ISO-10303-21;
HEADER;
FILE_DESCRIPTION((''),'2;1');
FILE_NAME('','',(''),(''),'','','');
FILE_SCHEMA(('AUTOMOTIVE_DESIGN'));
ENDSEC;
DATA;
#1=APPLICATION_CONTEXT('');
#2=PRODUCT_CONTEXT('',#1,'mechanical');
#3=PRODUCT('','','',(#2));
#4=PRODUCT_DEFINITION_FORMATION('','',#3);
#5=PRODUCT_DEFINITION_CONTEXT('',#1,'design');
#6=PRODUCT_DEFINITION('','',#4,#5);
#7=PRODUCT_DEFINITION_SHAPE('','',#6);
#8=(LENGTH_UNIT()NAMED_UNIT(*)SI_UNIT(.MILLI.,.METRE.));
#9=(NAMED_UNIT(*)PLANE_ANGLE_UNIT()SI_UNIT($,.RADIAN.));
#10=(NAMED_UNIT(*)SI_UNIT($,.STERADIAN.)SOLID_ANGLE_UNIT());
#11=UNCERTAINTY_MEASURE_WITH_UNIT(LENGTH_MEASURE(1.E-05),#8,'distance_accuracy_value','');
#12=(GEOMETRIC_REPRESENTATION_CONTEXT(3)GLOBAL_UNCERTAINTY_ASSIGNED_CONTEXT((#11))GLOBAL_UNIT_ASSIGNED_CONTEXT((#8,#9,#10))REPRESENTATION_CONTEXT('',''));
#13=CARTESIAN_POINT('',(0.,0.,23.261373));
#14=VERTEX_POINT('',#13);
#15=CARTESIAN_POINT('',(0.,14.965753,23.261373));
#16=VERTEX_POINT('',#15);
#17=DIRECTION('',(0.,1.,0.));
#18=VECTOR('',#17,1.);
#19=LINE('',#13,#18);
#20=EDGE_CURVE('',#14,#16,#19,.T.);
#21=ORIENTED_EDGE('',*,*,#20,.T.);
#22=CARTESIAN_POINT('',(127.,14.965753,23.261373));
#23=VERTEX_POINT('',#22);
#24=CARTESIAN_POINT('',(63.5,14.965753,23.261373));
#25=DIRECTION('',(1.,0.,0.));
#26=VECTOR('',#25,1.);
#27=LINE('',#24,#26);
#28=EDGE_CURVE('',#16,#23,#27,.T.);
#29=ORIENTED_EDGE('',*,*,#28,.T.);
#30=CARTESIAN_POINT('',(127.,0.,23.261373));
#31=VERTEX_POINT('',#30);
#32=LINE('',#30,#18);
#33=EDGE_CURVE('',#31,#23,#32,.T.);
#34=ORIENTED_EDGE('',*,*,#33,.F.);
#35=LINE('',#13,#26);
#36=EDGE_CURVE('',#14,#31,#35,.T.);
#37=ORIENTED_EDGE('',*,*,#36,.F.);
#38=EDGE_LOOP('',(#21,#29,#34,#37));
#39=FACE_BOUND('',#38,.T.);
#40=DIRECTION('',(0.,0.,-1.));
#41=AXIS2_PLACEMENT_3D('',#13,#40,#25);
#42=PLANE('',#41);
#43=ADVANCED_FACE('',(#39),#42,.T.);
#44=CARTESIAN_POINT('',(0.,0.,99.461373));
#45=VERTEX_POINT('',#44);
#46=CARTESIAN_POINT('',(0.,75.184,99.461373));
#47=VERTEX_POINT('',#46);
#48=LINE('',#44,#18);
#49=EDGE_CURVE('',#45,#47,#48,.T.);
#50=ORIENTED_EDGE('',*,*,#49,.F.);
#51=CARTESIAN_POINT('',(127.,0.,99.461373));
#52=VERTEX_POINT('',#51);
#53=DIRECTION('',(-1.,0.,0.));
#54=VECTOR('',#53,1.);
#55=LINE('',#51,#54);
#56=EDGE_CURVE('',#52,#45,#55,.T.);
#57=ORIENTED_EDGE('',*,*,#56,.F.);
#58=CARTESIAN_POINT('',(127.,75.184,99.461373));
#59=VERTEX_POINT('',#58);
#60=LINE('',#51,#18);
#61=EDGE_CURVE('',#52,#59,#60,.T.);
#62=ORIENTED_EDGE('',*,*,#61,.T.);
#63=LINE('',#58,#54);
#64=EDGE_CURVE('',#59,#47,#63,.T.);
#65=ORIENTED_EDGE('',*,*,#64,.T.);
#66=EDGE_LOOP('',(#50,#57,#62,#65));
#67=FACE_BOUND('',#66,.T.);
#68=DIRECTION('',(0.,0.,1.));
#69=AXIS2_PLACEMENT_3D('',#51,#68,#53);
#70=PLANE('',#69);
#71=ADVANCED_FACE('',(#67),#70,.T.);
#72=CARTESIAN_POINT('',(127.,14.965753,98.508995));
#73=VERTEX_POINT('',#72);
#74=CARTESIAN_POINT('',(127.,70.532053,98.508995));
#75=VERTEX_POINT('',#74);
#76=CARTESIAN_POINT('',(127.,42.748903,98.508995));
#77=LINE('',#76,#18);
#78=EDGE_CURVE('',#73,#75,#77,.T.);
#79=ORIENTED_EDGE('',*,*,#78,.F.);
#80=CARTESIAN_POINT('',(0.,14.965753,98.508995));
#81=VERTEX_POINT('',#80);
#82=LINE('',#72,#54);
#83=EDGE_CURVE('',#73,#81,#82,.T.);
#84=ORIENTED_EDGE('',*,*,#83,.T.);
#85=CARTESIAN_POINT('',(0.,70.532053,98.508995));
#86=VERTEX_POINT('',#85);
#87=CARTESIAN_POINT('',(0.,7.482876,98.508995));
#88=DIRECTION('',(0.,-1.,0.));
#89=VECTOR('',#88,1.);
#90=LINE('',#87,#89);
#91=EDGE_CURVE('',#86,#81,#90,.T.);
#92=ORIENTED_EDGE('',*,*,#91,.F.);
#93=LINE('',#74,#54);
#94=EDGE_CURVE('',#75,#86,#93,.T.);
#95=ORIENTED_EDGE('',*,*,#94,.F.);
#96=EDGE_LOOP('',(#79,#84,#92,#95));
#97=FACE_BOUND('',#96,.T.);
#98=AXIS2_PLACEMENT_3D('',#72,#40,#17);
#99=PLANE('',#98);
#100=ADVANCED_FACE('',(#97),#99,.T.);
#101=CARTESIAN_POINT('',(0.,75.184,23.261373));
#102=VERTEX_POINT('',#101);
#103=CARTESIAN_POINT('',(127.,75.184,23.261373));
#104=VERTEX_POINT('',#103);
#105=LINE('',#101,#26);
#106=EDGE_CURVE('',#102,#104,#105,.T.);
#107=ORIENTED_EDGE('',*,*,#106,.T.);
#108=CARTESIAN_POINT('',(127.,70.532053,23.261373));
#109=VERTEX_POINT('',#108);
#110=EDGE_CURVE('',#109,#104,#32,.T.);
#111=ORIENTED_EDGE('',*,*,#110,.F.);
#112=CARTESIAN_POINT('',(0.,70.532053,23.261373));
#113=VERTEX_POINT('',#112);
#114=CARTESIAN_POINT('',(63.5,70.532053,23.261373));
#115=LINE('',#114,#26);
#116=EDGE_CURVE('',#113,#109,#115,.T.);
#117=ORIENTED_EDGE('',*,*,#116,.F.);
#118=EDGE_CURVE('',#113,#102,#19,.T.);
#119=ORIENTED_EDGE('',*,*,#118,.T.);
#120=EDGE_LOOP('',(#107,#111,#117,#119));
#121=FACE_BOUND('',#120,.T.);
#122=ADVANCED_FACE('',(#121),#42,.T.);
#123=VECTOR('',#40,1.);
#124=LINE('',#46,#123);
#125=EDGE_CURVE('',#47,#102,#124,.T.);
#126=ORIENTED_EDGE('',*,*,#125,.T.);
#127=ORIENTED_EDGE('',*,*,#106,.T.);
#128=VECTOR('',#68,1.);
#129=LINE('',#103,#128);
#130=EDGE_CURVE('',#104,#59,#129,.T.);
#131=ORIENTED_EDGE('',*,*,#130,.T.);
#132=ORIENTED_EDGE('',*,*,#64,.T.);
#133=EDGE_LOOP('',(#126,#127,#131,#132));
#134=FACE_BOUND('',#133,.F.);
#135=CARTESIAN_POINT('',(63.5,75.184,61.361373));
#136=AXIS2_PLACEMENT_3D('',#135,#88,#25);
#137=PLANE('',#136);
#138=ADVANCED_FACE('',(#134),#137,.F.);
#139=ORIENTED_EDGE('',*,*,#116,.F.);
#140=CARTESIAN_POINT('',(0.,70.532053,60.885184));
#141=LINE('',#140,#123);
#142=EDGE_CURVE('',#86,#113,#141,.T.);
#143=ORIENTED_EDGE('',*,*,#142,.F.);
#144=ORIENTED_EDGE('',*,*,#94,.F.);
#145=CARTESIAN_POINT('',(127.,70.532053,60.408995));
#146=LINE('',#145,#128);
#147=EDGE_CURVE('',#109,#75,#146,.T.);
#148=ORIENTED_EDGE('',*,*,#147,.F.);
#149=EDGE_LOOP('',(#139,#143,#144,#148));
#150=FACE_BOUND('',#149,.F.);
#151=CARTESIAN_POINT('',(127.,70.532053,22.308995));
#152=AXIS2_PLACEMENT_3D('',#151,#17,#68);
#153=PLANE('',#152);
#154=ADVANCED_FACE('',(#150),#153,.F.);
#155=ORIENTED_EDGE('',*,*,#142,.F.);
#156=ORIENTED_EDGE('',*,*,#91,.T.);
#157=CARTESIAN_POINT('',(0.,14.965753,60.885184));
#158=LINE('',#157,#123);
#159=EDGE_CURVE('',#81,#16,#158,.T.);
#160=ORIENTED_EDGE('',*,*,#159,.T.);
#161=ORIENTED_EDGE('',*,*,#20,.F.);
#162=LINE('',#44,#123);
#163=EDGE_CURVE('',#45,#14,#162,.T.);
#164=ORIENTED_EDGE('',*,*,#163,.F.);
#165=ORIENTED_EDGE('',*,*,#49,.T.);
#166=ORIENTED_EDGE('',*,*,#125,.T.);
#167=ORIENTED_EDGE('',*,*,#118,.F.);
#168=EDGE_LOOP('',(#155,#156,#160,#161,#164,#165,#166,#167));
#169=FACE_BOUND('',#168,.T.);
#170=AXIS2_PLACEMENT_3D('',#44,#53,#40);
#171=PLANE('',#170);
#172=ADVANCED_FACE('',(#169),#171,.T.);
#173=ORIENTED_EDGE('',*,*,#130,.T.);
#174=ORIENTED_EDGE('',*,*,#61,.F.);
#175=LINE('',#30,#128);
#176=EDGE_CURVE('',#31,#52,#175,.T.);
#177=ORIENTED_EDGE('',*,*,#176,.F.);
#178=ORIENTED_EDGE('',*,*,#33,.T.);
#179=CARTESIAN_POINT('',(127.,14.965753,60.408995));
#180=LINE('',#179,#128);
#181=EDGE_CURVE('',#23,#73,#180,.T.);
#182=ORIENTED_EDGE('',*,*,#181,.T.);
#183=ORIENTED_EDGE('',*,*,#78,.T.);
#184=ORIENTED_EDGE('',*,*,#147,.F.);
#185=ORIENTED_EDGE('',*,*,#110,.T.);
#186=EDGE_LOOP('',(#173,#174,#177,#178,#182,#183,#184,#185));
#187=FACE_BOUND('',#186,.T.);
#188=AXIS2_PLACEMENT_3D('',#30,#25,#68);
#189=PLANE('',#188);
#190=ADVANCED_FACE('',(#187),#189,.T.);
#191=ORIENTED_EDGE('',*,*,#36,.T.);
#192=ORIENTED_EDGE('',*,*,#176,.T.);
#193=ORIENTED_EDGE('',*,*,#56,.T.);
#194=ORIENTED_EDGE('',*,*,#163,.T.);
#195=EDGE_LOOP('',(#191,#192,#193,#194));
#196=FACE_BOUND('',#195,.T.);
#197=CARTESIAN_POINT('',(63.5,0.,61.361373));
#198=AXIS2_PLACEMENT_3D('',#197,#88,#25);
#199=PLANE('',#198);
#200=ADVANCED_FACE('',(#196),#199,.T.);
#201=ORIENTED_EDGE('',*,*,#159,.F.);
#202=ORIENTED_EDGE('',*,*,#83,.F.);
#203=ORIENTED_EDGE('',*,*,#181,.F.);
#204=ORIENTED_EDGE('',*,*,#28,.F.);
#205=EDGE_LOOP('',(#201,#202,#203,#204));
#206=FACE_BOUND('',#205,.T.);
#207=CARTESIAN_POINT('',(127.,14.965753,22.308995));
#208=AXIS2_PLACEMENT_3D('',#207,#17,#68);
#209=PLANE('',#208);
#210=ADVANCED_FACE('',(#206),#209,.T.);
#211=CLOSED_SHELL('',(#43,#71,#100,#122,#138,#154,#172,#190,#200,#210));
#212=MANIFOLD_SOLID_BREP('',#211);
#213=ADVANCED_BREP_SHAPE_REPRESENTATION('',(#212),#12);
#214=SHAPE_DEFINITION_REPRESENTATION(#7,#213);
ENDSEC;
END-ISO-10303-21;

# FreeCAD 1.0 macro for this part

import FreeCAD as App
import Part
import Sketcher
Q = App.Units.Quantity


def add_polygon(sketch, points):
    """Adds a closed chain of lines whose ends are joined by coincident constraints."""
    first, n = sketch.GeometryCount, len(points)
    for a, b in zip(points, points[1:] + points[:1]):
        sketch.addGeometry(Part.LineSegment(App.Vector(*a, 0), App.Vector(*b, 0)), False)
    for i in range(n):
        sketch.addConstraint(Sketcher.Constraint("Coincident", first + i, 2, first + (i + 1) % n, 1))

doc = App.newDocument("Part")
params = doc.addObject("Spreadsheet::Sheet", "Params")
for row, (alias, value) in enumerate([
    ("sketch1_width", "5 in"),
    ("sketch1_height", "3 in"),
    ("pad1_length", "2.96 in"),
    ("sketch2_height", "3 in"),
    ("pocket1_length", "6.57 in"),
], start=1):
    params.set(f"A{row}", alias)
    params.set(f"B{row}", "=" + value)
    params.setAlias(f"B{row}", alias)

body = doc.addObject("PartDesign::Body", "Body")

# Sketch on XZ plane
sketch1 = body.newObject("Sketcher::SketchObject", "Sketch")
sketch1.AttachmentSupport = (doc.getObject("XZ_Plane"), [""])
sketch1.MapMode = "FlatFace"
add_polygon(sketch1, [(0, 99), (0, 23), (127, 23), (127, 99)])  # lines 0-3
sketch1.addConstraint([
    Sketcher.Constraint("Vertical", 0),
    Sketcher.Constraint("Horizontal", 1),
    Sketcher.Constraint("Vertical", 2),
    Sketcher.Constraint("Horizontal", 3),
    Sketcher.Constraint("PointOnObject", 0, 2, -2),
    Sketcher.Constraint("DistanceX", 1, 1, 1, 2, Q("5 in")),
    Sketcher.Constraint("DistanceY", 0, 2, 0, 1, Q("3 in")),
    Sketcher.Constraint("DistanceY", -1, 1, 0, 2, 23.261373),
])
sketch1.setExpression("Constraints[9]", "Params.sketch1_width")
sketch1.setExpression("Constraints[10]", "Params.sketch1_height")
pad1 = body.newObject("PartDesign::Pad", "Pad")
pad1.Profile = sketch1
pad1.setExpression("Length", "Params.pad1_length")
pad1.Reversed = True

# Sketch on YZ plane
sketch2 = body.newObject("Sketcher::SketchObject", "Sketch001")
sketch2.AttachmentSupport = (doc.getObject("YZ_Plane"), [""])
sketch2.MapMode = "FlatFace"
sketch2.AttachmentOffset = App.Placement(App.Vector(0, 0, 5 * 25.4), App.Rotation())
add_polygon(sketch2, [(15, 99), (15, 22), (71, 22), (71, 99)])  # lines 0-3
sketch2.addConstraint([
    Sketcher.Constraint("Vertical", 0),
    Sketcher.Constraint("Horizontal", 1),
    Sketcher.Constraint("Vertical", 2),
    Sketcher.Constraint("Horizontal", 3),
    Sketcher.Constraint("DistanceY", 0, 2, 0, 1, Q("3 in")),
    Sketcher.Constraint("DistanceX", 1, 1, 1, 2, 55.5663),
    Sketcher.Constraint("DistanceX", -1, 1, 0, 2, 14.965753),
    Sketcher.Constraint("DistanceY", -1, 1, 0, 2, 22.308995),
])
sketch2.setExpression("Constraints[8]", "Params.sketch2_height")
pocket1 = body.newObject("PartDesign::Pocket", "Pocket")
pocket1.Profile = sketch2
pocket1.setExpression("Length", "Params.pocket1_length")

doc.recompute()
